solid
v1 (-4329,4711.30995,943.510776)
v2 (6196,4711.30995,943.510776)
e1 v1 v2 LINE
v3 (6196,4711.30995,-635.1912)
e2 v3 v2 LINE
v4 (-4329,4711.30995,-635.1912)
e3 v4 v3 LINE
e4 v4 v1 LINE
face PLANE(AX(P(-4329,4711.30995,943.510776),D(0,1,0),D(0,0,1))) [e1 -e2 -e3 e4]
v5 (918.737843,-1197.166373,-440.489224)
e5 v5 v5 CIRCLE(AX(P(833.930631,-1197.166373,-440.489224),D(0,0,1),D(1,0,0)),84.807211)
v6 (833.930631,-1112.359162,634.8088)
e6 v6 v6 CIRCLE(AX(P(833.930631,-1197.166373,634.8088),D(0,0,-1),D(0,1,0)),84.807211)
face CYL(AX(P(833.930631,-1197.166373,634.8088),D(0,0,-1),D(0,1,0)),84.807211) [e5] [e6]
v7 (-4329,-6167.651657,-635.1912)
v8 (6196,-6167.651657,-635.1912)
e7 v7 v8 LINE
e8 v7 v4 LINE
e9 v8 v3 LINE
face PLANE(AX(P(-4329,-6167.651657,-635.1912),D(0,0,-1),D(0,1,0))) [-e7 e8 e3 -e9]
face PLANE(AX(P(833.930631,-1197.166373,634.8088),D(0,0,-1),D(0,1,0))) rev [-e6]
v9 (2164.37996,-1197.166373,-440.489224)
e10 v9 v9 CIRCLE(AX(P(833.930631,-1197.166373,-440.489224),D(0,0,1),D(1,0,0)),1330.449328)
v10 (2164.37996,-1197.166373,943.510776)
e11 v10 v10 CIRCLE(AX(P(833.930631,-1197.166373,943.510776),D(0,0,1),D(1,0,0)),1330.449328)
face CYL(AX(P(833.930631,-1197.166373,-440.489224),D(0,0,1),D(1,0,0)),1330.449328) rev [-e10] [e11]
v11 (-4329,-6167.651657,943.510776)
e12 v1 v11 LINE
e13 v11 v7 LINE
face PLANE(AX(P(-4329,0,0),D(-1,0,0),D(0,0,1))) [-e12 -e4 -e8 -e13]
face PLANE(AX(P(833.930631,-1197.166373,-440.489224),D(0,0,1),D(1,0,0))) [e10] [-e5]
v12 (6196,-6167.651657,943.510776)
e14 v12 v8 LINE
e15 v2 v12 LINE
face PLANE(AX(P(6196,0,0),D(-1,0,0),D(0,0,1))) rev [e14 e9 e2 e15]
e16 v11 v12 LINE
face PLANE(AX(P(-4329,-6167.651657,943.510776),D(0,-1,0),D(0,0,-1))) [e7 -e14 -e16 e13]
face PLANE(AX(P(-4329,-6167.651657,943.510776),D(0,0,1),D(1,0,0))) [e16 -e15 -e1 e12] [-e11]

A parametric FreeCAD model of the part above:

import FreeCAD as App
import Part
import Sketcher


def add_polygon(sketch, points):
    """Adds a closed chain of lines whose ends are joined by coincident constraints."""
    first, n = sketch.GeometryCount, len(points)
    for a, b in zip(points, points[1:] + points[:1]):
        sketch.addGeometry(Part.LineSegment(App.Vector(*a, 0), App.Vector(*b, 0)), False)
    for i in range(n):
        sketch.addConstraint(Sketcher.Constraint("Coincident", first + i, 2, first + (i + 1) % n, 1))

doc = App.newDocument("Part")
body = doc.addObject("PartDesign::Body", "Body")

# Sketch on YZ plane
sketch1 = body.newObject("Sketcher::SketchObject", "Sketch")
sketch1.AttachmentSupport = (doc.getObject("YZ_Plane"), [""])
sketch1.MapMode = "FlatFace"
add_polygon(sketch1, [(4711, 944), (-6168, 944), (-6168, -635), (4711, -635)])  # lines 0-3
sketch1.addConstraint([
    Sketcher.Constraint("Horizontal", 0),
    Sketcher.Constraint("Vertical", 1),
    Sketcher.Constraint("Horizontal", 2),
    Sketcher.Constraint("Vertical", 3),
    Sketcher.Constraint("DistanceY", 1, 2, -1, 1, 635.191201),
    Sketcher.Constraint("DistanceX", 0, 2, 0, 1, 10878.961606),
    Sketcher.Constraint("DistanceY", 1, 2, 1, 1, 1578.701977),
    Sketcher.Constraint("DistanceX", -1, 1, 2, 2, 4711.30995),
])
pad1 = body.newObject("PartDesign::Pad", "Pad")
pad1.Profile = sketch1
pad1.Type = "TwoLengths"
pad1.Length = 6196
pad1.Length2 = 4329

# Sketch on XY plane
sketch2 = body.newObject("Sketcher::SketchObject", "Sketch001")
sketch2.AttachmentSupport = (doc.getObject("XY_Plane"), [""])
sketch2.MapMode = "FlatFace"
sketch2.AttachmentOffset = App.Placement(App.Vector(0, 0, 943.510776), App.Rotation())
sketch2.addGeometry(Part.Circle(App.Vector(834, -1197, 0), App.Vector(0, 0, 1), 1330), False)
sketch2.addConstraint([
    Sketcher.Constraint("Diameter", 0, 2660.898657),
    Sketcher.Constraint("DistanceX", -1, 1, 0, 3, 833.930631),
    Sketcher.Constraint("DistanceY", 0, 3, -1, 1, 1197.166373),
])
pocket1 = body.newObject("PartDesign::Pocket", "Pocket")
pocket1.Profile = sketch2
pocket1.Length = 1384

# Sketch on XY plane
sketch3 = body.newObject("Sketcher::SketchObject", "Sketch002")
sketch3.AttachmentSupport = (doc.getObject("XY_Plane"), [""])
sketch3.MapMode = "FlatFace"
sketch3.AttachmentOffset = App.Placement(App.Vector(0, 0, -635.191201), App.Rotation())
sketch3.addGeometry(Part.Circle(App.Vector(834, -1197, 0), App.Vector(0, 0, 1), 85), False)
sketch3.addConstraint([
    Sketcher.Constraint("Diameter", 0, 169.614423),
    Sketcher.Constraint("DistanceX", -1, 1, 0, 3, 833.930631),
    Sketcher.Constraint("DistanceY", 0, 3, -1, 1, 1197.166373),
])
pad2 = body.newObject("PartDesign::Pad", "Pad001")
pad2.Profile = sketch3
pad2.Length = 1270

doc.recompute()
